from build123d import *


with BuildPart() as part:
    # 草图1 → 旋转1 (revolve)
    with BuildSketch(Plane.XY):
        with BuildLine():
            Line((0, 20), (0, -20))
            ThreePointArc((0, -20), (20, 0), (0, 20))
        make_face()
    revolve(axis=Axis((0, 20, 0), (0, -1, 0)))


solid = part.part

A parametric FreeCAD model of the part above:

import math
import FreeCAD as App
import Part
import Sketcher
from FreeCAD import Vector

doc = App.newDocument("Part")
body = doc.addObject("PartDesign::Body", "Body")

sketch1 = body.newObject("Sketcher::SketchObject", "Sketch")
sketch1.AttachmentSupport = (doc.getObject("XY_Plane"), [""])
sketch1.MapMode = "FlatFace"
sketch1.addGeometry(Part.LineSegment(Vector(0, 20, 0), Vector(0, -20, 0)), False)
sketch1.addGeometry(Part.ArcOfCircle(Part.Circle(Vector(0, 0, 0), Vector(0, 0, 1), 20), math.radians(-90), math.radians(90)), False)
sketch1.addConstraint(Sketcher.Constraint("Coincident", 0, 1, 1, 2))
sketch1.addConstraint(Sketcher.Constraint("Coincident", 1, 1, 0, 2))
sketch1.addConstraint(Sketcher.Constraint("Vertical", 0))
sketch1.addConstraint(Sketcher.Constraint("Coincident", 1, 3, -1, 1))
sketch1.addConstraint(Sketcher.Constraint("PointOnObject", 0, 1, -2))
sketch1.addConstraint(Sketcher.Constraint("Radius", 1, 20.0))
revolution = body.newObject("PartDesign::Revolution", "Revolution")
revolution.Profile = sketch1
revolution.ReferenceAxis = (sketch1, ["V_Axis"])
revolution.Angle = 360

doc.recompute()
